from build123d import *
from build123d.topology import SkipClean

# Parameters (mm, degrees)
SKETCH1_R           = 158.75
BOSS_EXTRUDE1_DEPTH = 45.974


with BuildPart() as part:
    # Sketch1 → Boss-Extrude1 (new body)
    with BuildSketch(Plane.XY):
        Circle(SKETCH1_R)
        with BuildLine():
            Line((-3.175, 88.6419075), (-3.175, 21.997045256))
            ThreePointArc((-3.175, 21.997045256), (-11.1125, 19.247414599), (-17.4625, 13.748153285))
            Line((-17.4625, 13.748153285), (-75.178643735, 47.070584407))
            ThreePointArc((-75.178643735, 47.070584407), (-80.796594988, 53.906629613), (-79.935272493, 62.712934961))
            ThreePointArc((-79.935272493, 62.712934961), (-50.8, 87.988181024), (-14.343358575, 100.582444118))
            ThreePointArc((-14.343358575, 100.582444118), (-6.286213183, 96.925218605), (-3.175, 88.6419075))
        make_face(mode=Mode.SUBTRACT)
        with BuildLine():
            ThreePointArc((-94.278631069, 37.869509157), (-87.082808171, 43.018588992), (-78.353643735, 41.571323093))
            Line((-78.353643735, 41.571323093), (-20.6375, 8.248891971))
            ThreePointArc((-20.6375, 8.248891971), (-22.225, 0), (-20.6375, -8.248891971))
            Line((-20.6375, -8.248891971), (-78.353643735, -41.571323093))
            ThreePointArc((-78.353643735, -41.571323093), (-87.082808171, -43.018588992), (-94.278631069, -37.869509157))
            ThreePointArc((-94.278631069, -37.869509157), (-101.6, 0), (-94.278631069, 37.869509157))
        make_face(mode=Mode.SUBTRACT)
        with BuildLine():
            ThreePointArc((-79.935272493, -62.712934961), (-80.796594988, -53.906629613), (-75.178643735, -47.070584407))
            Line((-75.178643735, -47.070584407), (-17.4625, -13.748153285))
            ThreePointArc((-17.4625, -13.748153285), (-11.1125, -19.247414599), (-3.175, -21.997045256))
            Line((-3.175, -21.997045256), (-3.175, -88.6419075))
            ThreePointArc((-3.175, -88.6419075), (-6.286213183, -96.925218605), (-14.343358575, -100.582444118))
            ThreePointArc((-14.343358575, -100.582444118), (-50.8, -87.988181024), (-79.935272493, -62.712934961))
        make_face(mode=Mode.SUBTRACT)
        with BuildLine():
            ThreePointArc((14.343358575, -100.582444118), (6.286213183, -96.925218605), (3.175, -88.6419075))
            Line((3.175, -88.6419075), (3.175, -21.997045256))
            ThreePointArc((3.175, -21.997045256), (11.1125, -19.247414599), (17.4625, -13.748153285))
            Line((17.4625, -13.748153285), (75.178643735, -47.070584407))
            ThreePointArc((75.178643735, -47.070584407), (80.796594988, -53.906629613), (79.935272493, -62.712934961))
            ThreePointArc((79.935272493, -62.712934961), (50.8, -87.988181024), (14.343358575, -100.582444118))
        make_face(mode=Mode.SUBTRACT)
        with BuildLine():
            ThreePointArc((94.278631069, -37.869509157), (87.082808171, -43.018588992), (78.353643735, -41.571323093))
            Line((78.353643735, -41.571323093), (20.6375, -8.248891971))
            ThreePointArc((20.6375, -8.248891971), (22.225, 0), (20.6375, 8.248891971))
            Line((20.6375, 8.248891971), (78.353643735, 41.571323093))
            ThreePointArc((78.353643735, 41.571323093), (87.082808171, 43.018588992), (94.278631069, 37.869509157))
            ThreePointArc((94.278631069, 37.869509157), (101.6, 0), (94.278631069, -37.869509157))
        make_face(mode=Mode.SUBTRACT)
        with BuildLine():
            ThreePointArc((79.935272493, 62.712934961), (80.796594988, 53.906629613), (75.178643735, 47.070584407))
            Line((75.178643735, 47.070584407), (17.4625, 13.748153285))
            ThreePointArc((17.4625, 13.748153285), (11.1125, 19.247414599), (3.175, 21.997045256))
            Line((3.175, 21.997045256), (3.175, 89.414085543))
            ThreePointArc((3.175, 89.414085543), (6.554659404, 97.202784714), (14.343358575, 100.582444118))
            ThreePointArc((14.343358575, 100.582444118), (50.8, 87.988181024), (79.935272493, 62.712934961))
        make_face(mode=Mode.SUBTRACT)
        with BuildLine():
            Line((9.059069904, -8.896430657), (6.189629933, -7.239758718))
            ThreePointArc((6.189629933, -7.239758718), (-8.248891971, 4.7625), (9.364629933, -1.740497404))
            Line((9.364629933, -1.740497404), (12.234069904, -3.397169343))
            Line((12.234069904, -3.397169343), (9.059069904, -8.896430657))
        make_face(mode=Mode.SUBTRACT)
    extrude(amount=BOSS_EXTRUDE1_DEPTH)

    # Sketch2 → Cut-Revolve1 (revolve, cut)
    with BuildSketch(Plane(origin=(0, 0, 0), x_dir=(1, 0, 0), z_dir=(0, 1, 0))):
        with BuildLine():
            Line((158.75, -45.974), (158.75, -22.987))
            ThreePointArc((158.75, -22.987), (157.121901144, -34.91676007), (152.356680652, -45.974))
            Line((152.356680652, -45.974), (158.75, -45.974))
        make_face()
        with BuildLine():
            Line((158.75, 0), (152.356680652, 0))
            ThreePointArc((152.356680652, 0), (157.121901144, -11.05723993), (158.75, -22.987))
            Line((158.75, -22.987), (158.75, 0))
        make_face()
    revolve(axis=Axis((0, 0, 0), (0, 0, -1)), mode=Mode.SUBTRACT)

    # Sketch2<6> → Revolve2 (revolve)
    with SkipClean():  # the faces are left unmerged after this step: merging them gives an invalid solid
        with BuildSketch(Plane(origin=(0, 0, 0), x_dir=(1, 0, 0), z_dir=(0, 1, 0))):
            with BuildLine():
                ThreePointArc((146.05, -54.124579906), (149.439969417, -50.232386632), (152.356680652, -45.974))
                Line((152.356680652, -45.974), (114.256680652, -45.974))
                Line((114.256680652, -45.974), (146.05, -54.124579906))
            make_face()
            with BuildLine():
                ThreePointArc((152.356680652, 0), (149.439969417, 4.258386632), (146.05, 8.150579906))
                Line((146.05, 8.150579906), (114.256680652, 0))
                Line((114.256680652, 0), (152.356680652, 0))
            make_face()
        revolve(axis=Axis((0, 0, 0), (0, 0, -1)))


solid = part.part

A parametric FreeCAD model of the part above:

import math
import FreeCAD as App
import Part
import Sketcher
Q = App.Units.Quantity

doc = App.newDocument("Part")
body = doc.addObject("PartDesign::Body", "Body")

# Sketch on XY plane
sketch1 = doc.addObject("Sketcher::SketchObject", "Sketch")
body.addObject(sketch1)
sketch1.AttachmentSupport = (doc.XY_Plane, [""])
sketch1.MapMode = "FlatFace"
sketch1.addGeometry(Part.Circle(App.Vector(0, 0, 0), App.Vector(0, 0, 1), 158.75), False)
sketch1.addGeometry(Part.ArcOfCircle(Part.Circle(App.Vector(0, 0, 0), App.Vector(0, 0, 1), 101.6), math.radians(-141.884168), math.radians(-98.115832)), False)
sketch1.addGeometry(Part.ArcOfCircle(Part.Circle(App.Vector(-69.735783, -57.270074, 0), App.Vector(0, 0, 1), 11.560896), math.radians(118.086188), math.radians(208.086188)), False)
sketch1.addGeometry(Part.LineSegment(App.Vector(-75.178644, -47.070584, 0), App.Vector(-17.4625, -13.748153, 0)), False)
sketch1.addGeometry(Part.ArcOfCircle(Part.Circle(App.Vector(0, 0, 0), App.Vector(0, 0, 1), 22.225), math.radians(-141.786789), math.radians(-98.213211)), False)
sketch1.addGeometry(Part.LineSegment(App.Vector(-3.175, -21.997045, 0), App.Vector(-3.175, -88.641908, 0)), False)
sketch1.addGeometry(Part.ArcOfCircle(Part.Circle(App.Vector(-14.729448, -89.027997, 0), App.Vector(0, 0, 1), 11.560896), math.radians(-88.086188), math.radians(1.913812)), False)
sketch1.addGeometry(Part.ArcOfCircle(Part.Circle(App.Vector(0, 0, 0), App.Vector(0, 0, 1), 101.6), math.radians(-81.884168), math.radians(-38.115832)), False)
sketch1.addGeometry(Part.ArcOfCircle(Part.Circle(App.Vector(14.729448, -89.027997, 0), App.Vector(0, 0, 1), 11.560896), math.radians(178.086188), math.radians(268.086188)), False)
sketch1.addGeometry(Part.LineSegment(App.Vector(3.175, -88.641908, 0), App.Vector(3.175, -21.997045, 0)), False)
sketch1.addGeometry(Part.ArcOfCircle(Part.Circle(App.Vector(0, 0, 0), App.Vector(0, 0, 1), 22.225), math.radians(-81.786789), math.radians(-38.213211)), False)
sketch1.addGeometry(Part.LineSegment(App.Vector(17.4625, -13.748153, 0), App.Vector(75.178644, -47.070584, 0)), False)
sketch1.addGeometry(Part.ArcOfCircle(Part.Circle(App.Vector(69.735783, -57.270074, 0), App.Vector(0, 0, 1), 11.560896), math.radians(-28.086188), math.radians(61.913812)), False)
sketch1.addGeometry(Part.LineSegment(App.Vector(12.23407, -3.397169, 0), App.Vector(9.05907, -8.896431, 0)), False)
sketch1.addGeometry(Part.LineSegment(App.Vector(9.05907, -8.896431, 0), App.Vector(6.18963, -7.239759, 0)), False)
sketch1.addGeometry(Part.ArcOfCircle(Part.Circle(App.Vector(0, 0, 0), App.Vector(0, 0, 1), 9.525), math.radians(-10.528779), math.radians(310.528779)), False)
sketch1.addGeometry(Part.LineSegment(App.Vector(9.36463, -1.740497, 0), App.Vector(12.23407, -3.397169, 0)), False)
sketch1.addGeometry(Part.ArcOfCircle(Part.Circle(App.Vector(0, 0, 0), App.Vector(0, 0, 1), 101.6), math.radians(158.115832), math.radians(201.884168)), False)
sketch1.addGeometry(Part.ArcOfCircle(Part.Circle(App.Vector(-84.46523, 31.757922, 0), App.Vector(0, 0, 1), 11.560896), math.radians(58.086188), math.radians(148.086188)), False)
sketch1.addGeometry(Part.LineSegment(App.Vector(-78.353644, 41.571323, 0), App.Vector(-20.6375, 8.248892, 0)), False)
sketch1.addGeometry(Part.ArcOfCircle(Part.Circle(App.Vector(0, 0, 0), App.Vector(0, 0, 1), 22.225), math.radians(158.213211), math.radians(201.786789)), False)
sketch1.addGeometry(Part.LineSegment(App.Vector(-20.6375, -8.248892, 0), App.Vector(-78.353644, -41.571323, 0)), False)
sketch1.addGeometry(Part.ArcOfCircle(Part.Circle(App.Vector(-84.46523, -31.757922, 0), App.Vector(0, 0, 1), 11.560896), math.radians(-148.086188), math.radians(-58.086188)), False)
sketch1.addGeometry(Part.ArcOfCircle(Part.Circle(App.Vector(-14.729448, 89.027997, 0), App.Vector(0, 0, 1), 11.560896), math.radians(-1.913812), math.radians(88.086188)), False)
sketch1.addGeometry(Part.LineSegment(App.Vector(-3.175, 88.641908, 0), App.Vector(-3.175, 21.997045, 0)), False)
sketch1.addGeometry(Part.ArcOfCircle(Part.Circle(App.Vector(0, 0, 0), App.Vector(0, 0, 1), 22.225), math.radians(98.213211), math.radians(141.786789)), False)
sketch1.addGeometry(Part.LineSegment(App.Vector(-17.4625, 13.748153, 0), App.Vector(-75.178644, 47.070584, 0)), False)
sketch1.addGeometry(Part.ArcOfCircle(Part.Circle(App.Vector(-69.735783, 57.270074, 0), App.Vector(0, 0, 1), 11.560896), math.radians(151.913812), math.radians(241.913812)), False)
sketch1.addGeometry(Part.ArcOfCircle(Part.Circle(App.Vector(0, 0, 0), App.Vector(0, 0, 1), 101.6), math.radians(98.115832), math.radians(141.884168)), False)
sketch1.addGeometry(Part.ArcOfCircle(Part.Circle(App.Vector(0, 0, 0), App.Vector(0, 0, 1), 101.6), math.radians(-21.884168), math.radians(21.884168)), False)
sketch1.addGeometry(Part.ArcOfCircle(Part.Circle(App.Vector(84.46523, -31.757922, 0), App.Vector(0, 0, 1), 11.560896), math.radians(-121.913812), math.radians(-31.913812)), False)
sketch1.addGeometry(Part.LineSegment(App.Vector(78.353644, -41.571323, 0), App.Vector(20.6375, -8.248892, 0)), False)
sketch1.addGeometry(Part.ArcOfCircle(Part.Circle(App.Vector(0, 0, 0), App.Vector(0, 0, 1), 22.225), math.radians(-21.786789), math.radians(21.786789)), False)
sketch1.addGeometry(Part.LineSegment(App.Vector(20.6375, 8.248892, 0), App.Vector(78.353644, 41.571323, 0)), False)
sketch1.addGeometry(Part.ArcOfCircle(Part.Circle(App.Vector(84.46523, 31.757922, 0), App.Vector(0, 0, 1), 11.560896), math.radians(31.913812), math.radians(121.913812)), False)
sketch1.addGeometry(Part.ArcOfCircle(Part.Circle(App.Vector(0, 0, 0), App.Vector(0, 0, 1), 101.6), math.radians(38.115832), math.radians(81.884168)), False)
sketch1.addGeometry(Part.ArcOfCircle(Part.Circle(App.Vector(69.735783, 57.270074, 0), App.Vector(0, 0, 1), 11.560896), math.radians(-61.913812), math.radians(28.086188)), False)
sketch1.addGeometry(Part.LineSegment(App.Vector(75.178644, 47.070584, 0), App.Vector(17.4625, 13.748153, 0)), False)
sketch1.addGeometry(Part.ArcOfCircle(Part.Circle(App.Vector(0, 0, 0), App.Vector(0, 0, 1), 22.225), math.radians(38.213211), math.radians(81.786789)), False)
sketch1.addGeometry(Part.LineSegment(App.Vector(3.175, 21.997045, 0), App.Vector(3.175, 89.414086, 0)), False)
sketch1.addGeometry(Part.ArcOfCircle(Part.Circle(App.Vector(14.729448, 89.027997, 0), App.Vector(0, 0, 1), 11.560896), math.radians(91.913812), math.radians(178.086188)), False)
sketch1.addConstraint(Sketcher.Constraint("Coincident", 1, 1, 2, 2))
sketch1.addConstraint(Sketcher.Constraint("Coincident", 2, 1, 3, 1))
sketch1.addConstraint(Sketcher.Constraint("Coincident", 3, 2, 4, 1))
sketch1.addConstraint(Sketcher.Constraint("Coincident", 4, 2, 5, 1))
sketch1.addConstraint(Sketcher.Constraint("Coincident", 5, 2, 6, 2))
sketch1.addConstraint(Sketcher.Constraint("Coincident", 6, 1, 1, 2))
sketch1.addConstraint(Sketcher.Constraint("Coincident", 7, 1, 8, 2))
sketch1.addConstraint(Sketcher.Constraint("Coincident", 8, 1, 9, 1))
sketch1.addConstraint(Sketcher.Constraint("Coincident", 9, 2, 10, 1))
sketch1.addConstraint(Sketcher.Constraint("Coincident", 10, 2, 11, 1))
sketch1.addConstraint(Sketcher.Constraint("Coincident", 11, 2, 12, 2))
sketch1.addConstraint(Sketcher.Constraint("Coincident", 12, 1, 7, 2))
sketch1.addConstraint(Sketcher.Constraint("Coincident", 13, 2, 14, 1))
sketch1.addConstraint(Sketcher.Constraint("Coincident", 14, 2, 15, 2))
sketch1.addConstraint(Sketcher.Constraint("Coincident", 15, 1, 16, 1))
sketch1.addConstraint(Sketcher.Constraint("Coincident", 16, 2, 13, 1))
sketch1.addConstraint(Sketcher.Constraint("Coincident", 17, 1, 18, 2))
sketch1.addConstraint(Sketcher.Constraint("Coincident", 18, 1, 19, 1))
sketch1.addConstraint(Sketcher.Constraint("Coincident", 19, 2, 20, 1))
sketch1.addConstraint(Sketcher.Constraint("Coincident", 20, 2, 21, 1))
sketch1.addConstraint(Sketcher.Constraint("Coincident", 21, 2, 22, 2))
sketch1.addConstraint(Sketcher.Constraint("Coincident", 22, 1, 17, 2))
sketch1.addConstraint(Sketcher.Constraint("Coincident", 23, 1, 24, 1))
sketch1.addConstraint(Sketcher.Constraint("Coincident", 24, 2, 25, 1))
sketch1.addConstraint(Sketcher.Constraint("Coincident", 25, 2, 26, 1))
sketch1.addConstraint(Sketcher.Constraint("Coincident", 26, 2, 27, 2))
sketch1.addConstraint(Sketcher.Constraint("Coincident", 27, 1, 28, 2))
sketch1.addConstraint(Sketcher.Constraint("Coincident", 28, 1, 23, 2))
sketch1.addConstraint(Sketcher.Constraint("Coincident", 29, 1, 30, 2))
sketch1.addConstraint(Sketcher.Constraint("Coincident", 30, 1, 31, 1))
sketch1.addConstraint(Sketcher.Constraint("Coincident", 31, 2, 32, 1))
sketch1.addConstraint(Sketcher.Constraint("Coincident", 32, 2, 33, 1))
sketch1.addConstraint(Sketcher.Constraint("Coincident", 33, 2, 34, 2))
sketch1.addConstraint(Sketcher.Constraint("Coincident", 34, 1, 29, 2))
sketch1.addConstraint(Sketcher.Constraint("Coincident", 35, 1, 36, 2))
sketch1.addConstraint(Sketcher.Constraint("Coincident", 36, 1, 37, 1))
sketch1.addConstraint(Sketcher.Constraint("Coincident", 37, 2, 38, 1))
sketch1.addConstraint(Sketcher.Constraint("Coincident", 38, 2, 39, 1))
sketch1.addConstraint(Sketcher.Constraint("Coincident", 39, 2, 40, 2))
sketch1.addConstraint(Sketcher.Constraint("Coincident", 40, 1, 35, 2))
sketch1.addConstraint(Sketcher.Constraint("Vertical", 5))
sketch1.addConstraint(Sketcher.Constraint("Vertical", 9))
sketch1.addConstraint(Sketcher.Constraint("Vertical", 24))
sketch1.addConstraint(Sketcher.Constraint("Vertical", 39))
sketch1.addConstraint(Sketcher.Constraint("Coincident", 0, 3, -1, 1))
sketch1.addConstraint(Sketcher.Constraint("Coincident", 1, 3, -1, 1))
sketch1.addConstraint(Sketcher.Constraint("Coincident", 4, 3, -1, 1))
sketch1.addConstraint(Sketcher.Constraint("Coincident", 7, 3, -1, 1))
sketch1.addConstraint(Sketcher.Constraint("Coincident", 10, 3, -1, 1))
sketch1.addConstraint(Sketcher.Constraint("Coincident", 15, 3, -1, 1))
sketch1.addConstraint(Sketcher.Constraint("Coincident", 17, 3, -1, 1))
sketch1.addConstraint(Sketcher.Constraint("Coincident", 20, 3, -1, 1))
sketch1.addConstraint(Sketcher.Constraint("Coincident", 25, 3, -1, 1))
sketch1.addConstraint(Sketcher.Constraint("Coincident", 28, 3, -1, 1))
sketch1.addConstraint(Sketcher.Constraint("Coincident", 29, 3, -1, 1))
sketch1.addConstraint(Sketcher.Constraint("Coincident", 32, 3, -1, 1))
sketch1.addConstraint(Sketcher.Constraint("Coincident", 35, 3, -1, 1))
sketch1.addConstraint(Sketcher.Constraint("Coincident", 38, 3, -1, 1))
sketch1.addConstraint(Sketcher.Constraint("Radius", 1, Q("4 in")))
sketch1.addConstraint(Sketcher.Constraint("Radius", 7, Q("4 in")))
sketch1.addConstraint(Sketcher.Constraint("Radius", 17, Q("4 in")))
sketch1.addConstraint(Sketcher.Constraint("Radius", 28, Q("4 in")))
sketch1.addConstraint(Sketcher.Constraint("Radius", 29, Q("4 in")))
sketch1.addConstraint(Sketcher.Constraint("Radius", 35, Q("4 in")))
sketch1.addConstraint(Sketcher.Constraint("Diameter", 0, Q("12.5 in")))
sketch1.addConstraint(Sketcher.Constraint("Radius", 4, Q("0.875 in")))
sketch1.addConstraint(Sketcher.Constraint("Radius", 10, Q("0.875 in")))
sketch1.addConstraint(Sketcher.Constraint("Radius", 15, Q("0.375 in")))
sketch1.addConstraint(Sketcher.Constraint("Radius", 20, Q("0.875 in")))
sketch1.addConstraint(Sketcher.Constraint("Radius", 25, Q("0.875 in")))
sketch1.addConstraint(Sketcher.Constraint("Radius", 32, Q("0.875 in")))
sketch1.addConstraint(Sketcher.Constraint("Radius", 38, Q("0.875 in")))
sketch1.addConstraint(Sketcher.Constraint("Distance", 13, Q("0.25 in")))
sketch1.addConstraint(Sketcher.Constraint("DistanceX", 3, 2, -1, 1, Q("0.6875 in")))
sketch1.addConstraint(Sketcher.Constraint("DistanceX", 4, 2, -1, 1, Q("0.125 in")))
sketch1.addConstraint(Sketcher.Constraint("DistanceX", -1, 1, 8, 1, Q("0.125 in")))
sketch1.addConstraint(Sketcher.Constraint("DistanceX", -1, 1, 10, 2, Q("0.6875 in")))
sketch1.addConstraint(Sketcher.Constraint("DistanceX", 19, 2, -1, 1, Q("0.8125 in")))
sketch1.addConstraint(Sketcher.Constraint("DistanceX", 20, 2, -1, 1, Q("0.8125 in")))
sketch1.addConstraint(Sketcher.Constraint("DistanceX", 23, 1, -1, 1, Q("0.125 in")))
sketch1.addConstraint(Sketcher.Constraint("DistanceX", 25, 2, -1, 1, Q("0.6875 in")))
sketch1.addConstraint(Sketcher.Constraint("DistanceX", -1, 1, 31, 2, Q("0.8125 in")))
sketch1.addConstraint(Sketcher.Constraint("DistanceX", -1, 1, 32, 2, Q("0.8125 in")))
sketch1.addConstraint(Sketcher.Constraint("DistanceX", -1, 1, 37, 2, Q("0.6875 in")))
sketch1.addConstraint(Sketcher.Constraint("DistanceX", -1, 1, 38, 2, Q("0.125 in")))
sketch1.addConstraint(Sketcher.Constraint("Radius", 2, 11.560896))
sketch1.addConstraint(Sketcher.Constraint("Radius", 6, 11.560896))
sketch1.addConstraint(Sketcher.Constraint("Radius", 8, 11.560896))
sketch1.addConstraint(Sketcher.Constraint("Radius", 12, 11.560896))
sketch1.addConstraint(Sketcher.Constraint("Radius", 18, 11.560896))
sketch1.addConstraint(Sketcher.Constraint("Radius", 22, 11.560896))
sketch1.addConstraint(Sketcher.Constraint("Radius", 23, 11.560896))
sketch1.addConstraint(Sketcher.Constraint("Radius", 27, 11.560896))
sketch1.addConstraint(Sketcher.Constraint("Radius", 30, 11.560896))
sketch1.addConstraint(Sketcher.Constraint("Radius", 34, 11.560896))
sketch1.addConstraint(Sketcher.Constraint("Radius", 36, 11.560896))
sketch1.addConstraint(Sketcher.Constraint("Radius", 40, 11.560896))
sketch1.addConstraint(Sketcher.Constraint("DistanceY", 39, 1, 39, 2, 67.41704))
sketch1.addConstraint(Sketcher.Constraint("DistanceY", 5, 2, 5, 1, 66.644862))
sketch1.addConstraint(Sketcher.Constraint("DistanceY", 9, 1, 9, 2, 66.644862))
sketch1.addConstraint(Sketcher.Constraint("DistanceY", 24, 2, 24, 1, 66.644862))
sketch1.addConstraint(Sketcher.Constraint("DistanceX", 18, 3, -1, 1, 84.46523))
sketch1.addConstraint(Sketcher.Constraint("DistanceX", 22, 3, -1, 1, 84.46523))
sketch1.addConstraint(Sketcher.Constraint("DistanceX", -1, 1, 30, 3, 84.46523))
sketch1.addConstraint(Sketcher.Constraint("DistanceX", -1, 1, 34, 3, 84.46523))
sketch1.addConstraint(Sketcher.Constraint("DistanceX", 6, 1, -1, 1, 14.343359))
sketch1.addConstraint(Sketcher.Constraint("DistanceX", -1, 1, 7, 1, 14.343359))
sketch1.addConstraint(Sketcher.Constraint("DistanceX", -1, 1, 13, 2, 9.05907))
sketch1.addConstraint(Sketcher.Constraint("DistanceY", 13, 2, -1, 1, 8.896431))
sketch1.addConstraint(Sketcher.Constraint("DistanceX", -1, 1, 14, 2, 6.18963))
sketch1.addConstraint(Sketcher.Constraint("DistanceX", -1, 1, 15, 1, 9.36463))
sketch1.addConstraint(Sketcher.Constraint("DistanceX", -1, 1, 16, 2, 12.23407))
sketch1.addConstraint(Sketcher.Constraint("DistanceX", 17, 1, -1, 1, 94.278631))
sketch1.addConstraint(Sketcher.Constraint("DistanceX", 22, 1, -1, 1, 94.278631))
sketch1.addConstraint(Sketcher.Constraint("DistanceX", 28, 1, -1, 1, 14.343359))
sketch1.addConstraint(Sketcher.Constraint("DistanceX", -1, 1, 29, 1, 94.278631))
sketch1.addConstraint(Sketcher.Constraint("DistanceX", -1, 1, 34, 1, 94.278631))
sketch1.addConstraint(Sketcher.Constraint("DistanceX", -1, 1, 40, 1, 14.343359))
sketch1.addConstraint(Sketcher.Constraint("Distance", 3, 66.644862))
sketch1.addConstraint(Sketcher.Constraint("Distance", 11, 66.644862))
sketch1.addConstraint(Sketcher.Constraint("Distance", 19, 66.644862))
sketch1.addConstraint(Sketcher.Constraint("Distance", 21, 66.644862))
sketch1.addConstraint(Sketcher.Constraint("Distance", 26, 66.644862))
sketch1.addConstraint(Sketcher.Constraint("Distance", 31, 66.644862))
sketch1.addConstraint(Sketcher.Constraint("Distance", 33, 66.644862))
sketch1.addConstraint(Sketcher.Constraint("Distance", 37, 66.644862))
sketch1.addConstraint(Sketcher.Constraint("DistanceX", 2, 3, -1, 1, 69.735783))
sketch1.addConstraint(Sketcher.Constraint("DistanceY", 2, 3, -1, 1, 57.270074))
sketch1.addConstraint(Sketcher.Constraint("DistanceX", -1, 1, 12, 3, 69.735783))
sketch1.addConstraint(Sketcher.Constraint("DistanceY", 12, 3, -1, 1, 57.270074))
sketch1.addConstraint(Sketcher.Constraint("DistanceX", 27, 3, -1, 1, 69.735783))
sketch1.addConstraint(Sketcher.Constraint("DistanceY", -1, 1, 27, 3, 57.270074))
sketch1.addConstraint(Sketcher.Constraint("DistanceX", -1, 1, 36, 3, 69.735783))
sketch1.addConstraint(Sketcher.Constraint("DistanceY", -1, 1, 36, 3, 57.270074))
pad1 = doc.addObject("PartDesign::Pad", "Pad")
body.addObject(pad1)
pad1.Profile = sketch1
pad1.Length = Q("1.81 in")

# Sketch on XZ plane
sketch2 = doc.addObject("Sketcher::SketchObject", "Sketch001")
body.addObject(sketch2)
sketch2.AttachmentSupport = (doc.XZ_Plane, [""])
sketch2.MapMode = "FlatFace"
sketch2.addGeometry(Part.LineSegment(App.Vector(159, 46, 0), App.Vector(159, 23, 0)), False)
sketch2.addGeometry(Part.ArcOfCircle(Part.Circle(App.Vector(114, 23, 0), App.Vector(0, 0, 1), 45), math.radians(0), math.radians(31)), False)
sketch2.addGeometry(Part.LineSegment(App.Vector(152, 46, 0), App.Vector(159, 46, 0)), False)
sketch2.addGeometry(Part.LineSegment(App.Vector(159, 0, 0), App.Vector(152, 0, 0)), False)
sketch2.addGeometry(Part.ArcOfCircle(Part.Circle(App.Vector(114, 23, 0), App.Vector(0, 0, 1), 45), math.radians(-31), math.radians(0)), False)
sketch2.addGeometry(Part.LineSegment(App.Vector(159, 23, 0), App.Vector(159, 0, 0)), False)
sketch2.addConstraint(Sketcher.Constraint("Tangent", 0, 2, 1, 1))
sketch2.addConstraint(Sketcher.Constraint("Coincident", 1, 2, 2, 1))
sketch2.addConstraint(Sketcher.Constraint("Coincident", 2, 2, 0, 1))
sketch2.addConstraint(Sketcher.Constraint("Coincident", 3, 2, 4, 1))
sketch2.addConstraint(Sketcher.Constraint("Tangent", 4, 2, 5, 1))
sketch2.addConstraint(Sketcher.Constraint("Coincident", 5, 2, 3, 1))
sketch2.addConstraint(Sketcher.Constraint("Vertical", 0))
sketch2.addConstraint(Sketcher.Constraint("Horizontal", 2))
sketch2.addConstraint(Sketcher.Constraint("Horizontal", 3))
sketch2.addConstraint(Sketcher.Constraint("Vertical", 5))
sketch2.addConstraint(Sketcher.Constraint("Coincident", 4, 3, 1, 3))
sketch2.addConstraint(Sketcher.Constraint("Equal", 1, 4))
sketch2.addConstraint(Sketcher.Constraint("PointOnObject", 3, 2, -1))
sketch2.addConstraint(Sketcher.Constraint("Vertical", 1, 2, 3, 2))
sketch2.addConstraint(Sketcher.Constraint("DistanceY", 0, 2, 0, 1, Q("0.905 in")))
sketch2.addConstraint(Sketcher.Constraint("DistanceX", -1, 1, 0, 2, Q("6.25 in")))
sketch2.addConstraint(Sketcher.Constraint("Radius", 1, 44.521216))
groove = doc.addObject("PartDesign::Groove", "Groove")
body.addObject(groove)
groove.Profile = sketch2
groove.ReferenceAxis = (sketch2, ["V_Axis"])
groove.Angle = 360

# Sketch on XZ plane
sketch3 = doc.addObject("Sketcher::SketchObject", "Sketch002")
body.addObject(sketch3)
sketch3.AttachmentSupport = (doc.XZ_Plane, [""])
sketch3.MapMode = "FlatFace"
sketch3.addGeometry(Part.ArcOfCircle(Part.Circle(App.Vector(114, 23, 0), App.Vector(0, 0, 1), 45), math.radians(31.09), math.radians(44.38)), False)
sketch3.addGeometry(Part.LineSegment(App.Vector(152, 46, 0), App.Vector(114, 46, 0)), False)
sketch3.addGeometry(Part.LineSegment(App.Vector(114, 46, 0), App.Vector(146, 54, 0)), False)
sketch3.addGeometry(Part.ArcOfCircle(Part.Circle(App.Vector(114, 23, 0), App.Vector(0, 0, 1), 45), math.radians(-44.38), math.radians(-31.09)), False)
sketch3.addGeometry(Part.LineSegment(App.Vector(146, -8, 0), App.Vector(114, 0, 0)), False)
sketch3.addGeometry(Part.LineSegment(App.Vector(114, 0, 0), App.Vector(152, 0, 0)), False)
sketch3.addConstraint(Sketcher.Constraint("Coincident", 0, 1, 1, 1))
sketch3.addConstraint(Sketcher.Constraint("Coincident", 1, 2, 2, 1))
sketch3.addConstraint(Sketcher.Constraint("Coincident", 2, 2, 0, 2))
sketch3.addConstraint(Sketcher.Constraint("Coincident", 3, 1, 4, 1))
sketch3.addConstraint(Sketcher.Constraint("Coincident", 4, 2, 5, 1))
sketch3.addConstraint(Sketcher.Constraint("Coincident", 5, 2, 3, 2))
sketch3.addConstraint(Sketcher.Constraint("Horizontal", 1))
sketch3.addConstraint(Sketcher.Constraint("Horizontal", 5))
sketch3.addConstraint(Sketcher.Constraint("Coincident", 3, 3, 0, 3))
sketch3.addConstraint(Sketcher.Constraint("Equal", 0, 3))
sketch3.addConstraint(Sketcher.Constraint("PointOnObject", 4, 2, -1))
sketch3.addConstraint(Sketcher.Constraint("Vertical", 2, 2, 3, 1))
sketch3.addConstraint(Sketcher.Constraint("Vertical", 1, 2, 4, 2))
sketch3.addConstraint(Sketcher.Constraint("Vertical", 0, 1, 5, 2))
sketch3.addConstraint(Sketcher.Constraint("DistanceX", 1, 2, 1, 1, Q("1.5 in")))
sketch3.addConstraint(Sketcher.Constraint("DistanceY", -1, 1, 0, 1, Q("1.81 in")))
sketch3.addConstraint(Sketcher.Constraint("DistanceX", -1, 1, 2, 2, Q("5.75 in")))
sketch3.addConstraint(Sketcher.Constraint("Radius", 0, 44.521216))
sketch3.addConstraint(Sketcher.Constraint("DistanceX", -1, 1, 0, 1, 152.356681))
revolution = doc.addObject("PartDesign::Revolution", "Revolution")
body.addObject(revolution)
revolution.Profile = sketch3
revolution.ReferenceAxis = (sketch3, ["V_Axis"])
revolution.Angle = 360

doc.recompute()
